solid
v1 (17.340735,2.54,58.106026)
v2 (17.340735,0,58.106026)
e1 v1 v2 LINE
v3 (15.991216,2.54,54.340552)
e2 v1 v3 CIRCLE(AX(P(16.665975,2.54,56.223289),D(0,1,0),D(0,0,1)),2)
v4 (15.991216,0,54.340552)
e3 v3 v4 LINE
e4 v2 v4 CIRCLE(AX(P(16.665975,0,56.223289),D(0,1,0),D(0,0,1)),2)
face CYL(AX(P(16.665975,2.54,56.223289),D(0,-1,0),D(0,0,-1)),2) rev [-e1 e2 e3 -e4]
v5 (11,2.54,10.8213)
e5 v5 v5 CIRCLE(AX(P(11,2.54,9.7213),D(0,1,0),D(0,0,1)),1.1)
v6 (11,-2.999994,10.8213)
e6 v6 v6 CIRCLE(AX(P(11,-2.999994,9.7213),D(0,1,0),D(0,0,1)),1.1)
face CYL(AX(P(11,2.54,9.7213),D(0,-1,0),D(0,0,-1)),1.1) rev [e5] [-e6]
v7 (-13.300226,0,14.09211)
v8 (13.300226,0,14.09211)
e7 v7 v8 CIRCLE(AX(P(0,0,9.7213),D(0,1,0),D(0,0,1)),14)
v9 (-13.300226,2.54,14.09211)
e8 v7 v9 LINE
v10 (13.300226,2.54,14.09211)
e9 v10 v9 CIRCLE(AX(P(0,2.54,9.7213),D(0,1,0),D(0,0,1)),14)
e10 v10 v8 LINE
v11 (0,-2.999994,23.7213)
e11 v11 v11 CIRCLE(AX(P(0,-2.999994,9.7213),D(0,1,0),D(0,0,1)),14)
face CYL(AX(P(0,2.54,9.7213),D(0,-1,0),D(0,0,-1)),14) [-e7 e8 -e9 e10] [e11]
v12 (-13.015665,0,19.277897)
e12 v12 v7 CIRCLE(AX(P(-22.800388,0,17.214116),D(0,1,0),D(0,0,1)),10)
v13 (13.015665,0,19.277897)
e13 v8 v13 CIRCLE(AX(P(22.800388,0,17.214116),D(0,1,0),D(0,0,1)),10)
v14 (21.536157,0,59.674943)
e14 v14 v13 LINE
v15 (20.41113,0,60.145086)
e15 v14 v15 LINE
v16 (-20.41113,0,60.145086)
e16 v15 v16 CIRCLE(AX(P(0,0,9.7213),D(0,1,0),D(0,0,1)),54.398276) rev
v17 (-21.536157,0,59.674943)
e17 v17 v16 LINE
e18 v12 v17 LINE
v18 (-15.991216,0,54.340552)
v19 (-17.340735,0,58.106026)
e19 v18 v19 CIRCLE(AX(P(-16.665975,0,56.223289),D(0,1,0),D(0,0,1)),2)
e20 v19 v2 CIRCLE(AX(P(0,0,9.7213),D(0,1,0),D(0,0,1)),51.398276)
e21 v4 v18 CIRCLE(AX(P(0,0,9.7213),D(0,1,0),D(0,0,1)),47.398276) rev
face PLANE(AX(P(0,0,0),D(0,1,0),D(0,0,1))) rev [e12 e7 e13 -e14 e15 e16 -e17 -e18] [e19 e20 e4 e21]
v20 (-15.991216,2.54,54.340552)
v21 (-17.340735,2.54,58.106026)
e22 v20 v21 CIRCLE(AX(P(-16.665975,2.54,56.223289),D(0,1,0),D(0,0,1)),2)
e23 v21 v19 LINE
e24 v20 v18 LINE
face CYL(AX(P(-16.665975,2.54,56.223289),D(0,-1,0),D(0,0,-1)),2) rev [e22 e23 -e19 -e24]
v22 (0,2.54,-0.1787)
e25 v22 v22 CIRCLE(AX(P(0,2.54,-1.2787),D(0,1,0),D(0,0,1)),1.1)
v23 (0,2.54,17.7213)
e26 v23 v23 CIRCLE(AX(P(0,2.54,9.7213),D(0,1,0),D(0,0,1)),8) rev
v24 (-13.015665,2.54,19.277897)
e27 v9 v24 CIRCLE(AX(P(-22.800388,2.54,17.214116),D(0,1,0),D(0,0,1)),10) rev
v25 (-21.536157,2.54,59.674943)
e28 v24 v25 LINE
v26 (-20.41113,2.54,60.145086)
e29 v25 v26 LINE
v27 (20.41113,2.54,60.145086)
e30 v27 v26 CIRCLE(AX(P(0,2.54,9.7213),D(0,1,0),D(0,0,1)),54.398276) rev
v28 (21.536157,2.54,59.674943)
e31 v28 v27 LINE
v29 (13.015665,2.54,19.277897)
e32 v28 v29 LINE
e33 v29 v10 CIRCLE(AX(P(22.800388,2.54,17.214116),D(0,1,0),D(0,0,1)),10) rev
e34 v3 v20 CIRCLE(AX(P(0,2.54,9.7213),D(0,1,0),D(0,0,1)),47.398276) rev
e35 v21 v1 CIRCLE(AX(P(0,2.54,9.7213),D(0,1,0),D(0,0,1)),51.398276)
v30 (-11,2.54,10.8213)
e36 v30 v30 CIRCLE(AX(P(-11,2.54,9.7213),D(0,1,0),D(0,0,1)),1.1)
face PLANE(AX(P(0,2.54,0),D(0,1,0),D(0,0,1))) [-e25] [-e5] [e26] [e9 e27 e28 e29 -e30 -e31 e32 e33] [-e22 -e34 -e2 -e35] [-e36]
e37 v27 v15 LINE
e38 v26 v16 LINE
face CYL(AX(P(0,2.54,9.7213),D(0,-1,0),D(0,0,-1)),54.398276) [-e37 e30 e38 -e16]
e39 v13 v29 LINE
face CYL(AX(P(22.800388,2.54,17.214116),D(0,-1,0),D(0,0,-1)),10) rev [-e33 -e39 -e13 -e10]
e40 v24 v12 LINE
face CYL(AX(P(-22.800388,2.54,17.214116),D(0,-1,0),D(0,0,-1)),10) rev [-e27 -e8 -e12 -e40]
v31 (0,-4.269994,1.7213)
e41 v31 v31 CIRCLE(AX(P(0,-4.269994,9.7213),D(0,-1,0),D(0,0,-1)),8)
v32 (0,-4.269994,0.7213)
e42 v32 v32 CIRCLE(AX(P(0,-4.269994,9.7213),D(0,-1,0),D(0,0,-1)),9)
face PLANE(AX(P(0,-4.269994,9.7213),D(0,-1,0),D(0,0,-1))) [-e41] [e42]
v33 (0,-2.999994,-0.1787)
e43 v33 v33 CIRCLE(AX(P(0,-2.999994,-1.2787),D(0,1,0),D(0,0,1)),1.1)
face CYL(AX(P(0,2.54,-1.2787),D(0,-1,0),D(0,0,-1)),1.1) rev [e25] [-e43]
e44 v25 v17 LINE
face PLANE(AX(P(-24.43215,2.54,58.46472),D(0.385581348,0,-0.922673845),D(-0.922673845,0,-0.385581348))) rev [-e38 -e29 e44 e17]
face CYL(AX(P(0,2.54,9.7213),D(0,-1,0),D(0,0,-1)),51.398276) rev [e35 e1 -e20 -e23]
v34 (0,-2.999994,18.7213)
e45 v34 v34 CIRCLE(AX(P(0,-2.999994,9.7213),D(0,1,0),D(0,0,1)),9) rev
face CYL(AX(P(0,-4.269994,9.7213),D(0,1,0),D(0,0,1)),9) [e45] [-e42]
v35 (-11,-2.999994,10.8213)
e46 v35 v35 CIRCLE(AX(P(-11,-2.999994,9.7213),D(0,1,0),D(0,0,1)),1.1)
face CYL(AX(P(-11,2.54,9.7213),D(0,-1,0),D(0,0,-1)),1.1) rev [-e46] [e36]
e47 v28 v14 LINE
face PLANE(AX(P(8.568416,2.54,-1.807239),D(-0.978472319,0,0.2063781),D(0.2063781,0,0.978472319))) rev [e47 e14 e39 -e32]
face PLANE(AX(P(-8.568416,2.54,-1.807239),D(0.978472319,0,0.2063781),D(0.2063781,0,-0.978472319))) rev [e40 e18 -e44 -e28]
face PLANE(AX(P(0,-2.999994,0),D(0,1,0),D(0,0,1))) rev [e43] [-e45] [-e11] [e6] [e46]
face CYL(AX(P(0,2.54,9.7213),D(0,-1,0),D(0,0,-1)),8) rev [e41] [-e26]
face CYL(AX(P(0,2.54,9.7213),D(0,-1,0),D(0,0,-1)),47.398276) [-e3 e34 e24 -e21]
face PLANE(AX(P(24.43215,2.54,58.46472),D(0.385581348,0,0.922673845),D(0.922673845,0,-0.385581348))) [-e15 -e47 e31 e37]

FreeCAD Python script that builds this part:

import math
import FreeCAD as App
import Part
import Sketcher

V = App.Vector
Q = App.Units.Quantity


def edges_at(feature, points):
    """Names of the edges that pass closest to the given points."""
    edges = feature.Shape.Edges
    near = lambda p: min(range(len(edges)), key=lambda i: edges[i].distToShape(Part.Vertex(*p))[0])
    return sorted({f"Edge{near(p) + 1}" for p in points})

doc = App.newDocument("Part")
body = doc.addObject("PartDesign::Body", "Body")

# Sketch on XZ plane
sketch1 = body.newObject("Sketcher::SketchObject", "Sketch")
sketch1.AttachmentSupport = (doc.getObject("XZ_Plane"), [""])
sketch1.MapMode = "FlatFace"
sketch1.addGeometry([
    Part.LineSegment(V(20.4, 60.1, 0), V(21.5, 59.7, 0)),  # 0
    Part.LineSegment(V(21.5, 59.7, 0), V(12.4, 16.3, 0)),  # 1
    Part.ArcOfCircle(Part.Circle(V(0, 9.7, 0), V(0, 0, 1), 14), math.radians(152), math.radians(388)),  # 2
    Part.LineSegment(V(-12.4, 16.3, 0), V(-21.5, 59.7, 0)),  # 3
    Part.LineSegment(V(-21.5, 59.7, 0), V(-20.4, 60.1, 0)),  # 4
    Part.ArcOfCircle(Part.Circle(V(0, 9.7, 0), V(0, 0, 1), 54.4), math.radians(68), math.radians(112)),  # 5
    Part.ArcOfCircle(Part.Circle(V(16.7, 56.2, 0), V(0, 0, 1), 2), math.radians(-110), math.radians(70)),  # 6
    Part.ArcOfCircle(Part.Circle(V(0, 9.7, 0), V(0, 0, 1), 51.4), math.radians(70), math.radians(110)),  # 7
    Part.ArcOfCircle(Part.Circle(V(-16.7, 56.2, 0), V(0, 0, 1), 2), math.radians(110), math.radians(290)),  # 8
    Part.ArcOfCircle(Part.Circle(V(0, 9.7, 0), V(0, 0, 1), 47.4), math.radians(70), math.radians(110)),  # 9
    Part.Circle(V(-11, 9.7, 0), V(0, 0, 1), 1.1),  # 10
    Part.Circle(V(0, 9.7, 0), V(0, 0, 1), 8),  # 11
    Part.Circle(V(0, -1.3, 0), V(0, 0, 1), 1.1),  # 12
    Part.Circle(V(11, 9.7, 0), V(0, 0, 1), 1.1),  # 13
], False)
sketch1.addConstraint([
    Sketcher.Constraint("Coincident", 0, 2, 1, 1),
    Sketcher.Constraint("Coincident", 1, 2, 2, 2),
    Sketcher.Constraint("Coincident", 2, 1, 3, 1),
    Sketcher.Constraint("Coincident", 3, 2, 4, 1),
    Sketcher.Constraint("Coincident", 4, 2, 5, 2),
    Sketcher.Constraint("Coincident", 5, 1, 0, 1),
    Sketcher.Constraint("Tangent", 6, 2, 7, 1),
    Sketcher.Constraint("Tangent", 7, 2, 8, 1),
    Sketcher.Constraint("Tangent", 8, 2, 9, 2),
    Sketcher.Constraint("Tangent", 9, 1, 6, 1),
    Sketcher.Constraint("Coincident", 5, 3, 2, 3),
    Sketcher.Constraint("Coincident", 7, 3, 2, 3),
    Sketcher.Constraint("Coincident", 9, 3, 2, 3),
    Sketcher.Constraint("Coincident", 11, 3, 2, 3),
    Sketcher.Constraint("Equal", 10, 12),
    Sketcher.Constraint("Equal", 12, 13),
    Sketcher.Constraint("Symmetric", 6, 3, 8, 3, -2),
    Sketcher.Constraint("Symmetric", 10, 3, 13, 3, -2),
    Sketcher.Constraint("Symmetric", 0, 2, 3, 2, -2),
    Sketcher.Constraint("PointOnObject", 12, 3, -2),
    Sketcher.Constraint("Horizontal", 9, 3, 10, 3),
    Sketcher.Constraint("Horizontal", 1, 2, 2, 1),
    Sketcher.Constraint("Horizontal", 4, 2, 5, 1),
    Sketcher.Constraint("Diameter", 11, Q("16 mm")),
    Sketcher.Constraint("Radius", 2, Q("14 mm")),
    Sketcher.Constraint("Radius", 6, Q("2 mm")),
    Sketcher.Constraint("Diameter", 10, Q("2.2 mm")),
    Sketcher.Constraint("DistanceX", 10, 3, -1, 1, Q("11 mm")),
    Sketcher.Constraint("DistanceY", 12, 3, 9, 3, Q("11 mm")),
    Sketcher.Constraint("Radius", 5, Q("54.398276 mm")),
    Sketcher.Constraint("Radius", 7, Q("51.398276 mm")),
    Sketcher.Constraint("DistanceY", -1, 1, 2, 3, Q("9.7213 mm")),
    Sketcher.Constraint("Distance", 0, Q("1.219312 mm")),
    Sketcher.Constraint("DistanceY", -1, 1, 6, 3, Q("56.223289 mm")),
    Sketcher.Constraint("DistanceX", 4, 2, -1, 1, Q("20.41113 mm")),
    Sketcher.Constraint("DistanceX", 6, 3, 0, 2, Q("4.870181 mm")),
    Sketcher.Constraint("DistanceY", 2, 1, 3, 2, Q("43.414809 mm")),
])
pad1 = body.newObject("PartDesign::Pad", "Pad")
pad1.Profile = sketch1
pad1.Length = 2.54
pad1.Reversed = True
doc.recompute()

fillet = body.newObject("PartDesign::Fillet", "Fillet")
fillet.Base = (pad1, edges_at(pad1, [(12.379, 1.27, 16.26), (-12.379, 1.27, 16.26)]))
fillet.Radius = 10

# Sketch on XZ plane
sketch2 = body.newObject("Sketcher::SketchObject", "Sketch001")
sketch2.AttachmentSupport = (doc.getObject("XZ_Plane"), [""])
sketch2.MapMode = "FlatFace"
sketch2.addGeometry([
    Part.ArcOfCircle(Part.Circle(V(0, 9.7, 0), V(0, 0, 1), 14), math.radians(28), math.radians(152)),  # 0
    Part.ArcOfCircle(Part.Circle(V(0, 9.7, 0), V(0, 0, 1), 14), math.radians(0), math.radians(28)),  # 1
    Part.ArcOfCircle(Part.Circle(V(0, 9.7, 0), V(0, 0, 1), 14), math.radians(152), math.radians(360)),  # 2
    Part.ArcOfCircle(Part.Circle(V(-11, 9.7, 0), V(0, 0, 1), 1.1), math.radians(102), math.radians(360)),  # 3
    Part.ArcOfCircle(Part.Circle(V(-11, 9.7, 0), V(0, 0, 1), 1.1), math.radians(0), math.radians(102)),  # 4
    Part.Circle(V(0, 9.7, 0), V(0, 0, 1), 8),  # 5
    Part.ArcOfCircle(Part.Circle(V(11, 9.7, 0), V(0, 0, 1), 1.1), math.radians(78), math.radians(360)),  # 6
    Part.ArcOfCircle(Part.Circle(V(11, 9.7, 0), V(0, 0, 1), 1.1), math.radians(0), math.radians(78)),  # 7
    Part.Circle(V(0, -1.3, 0), V(0, 0, 1), 1.1),  # 8
], False)
sketch2.addConstraint([
    Sketcher.Constraint("Tangent", 0, 1, 1, 2),
    Sketcher.Constraint("Tangent", 1, 1, 2, 2),
    Sketcher.Constraint("Tangent", 2, 1, 0, 2),
    Sketcher.Constraint("Tangent", 3, 1, 4, 2),
    Sketcher.Constraint("Coincident", 4, 1, 3, 2),
    Sketcher.Constraint("Tangent", 6, 1, 7, 2),
    Sketcher.Constraint("Coincident", 7, 1, 6, 2),
    Sketcher.Constraint("Coincident", 5, 3, 0, 3),
    Sketcher.Constraint("Equal", 4, 6),
    Sketcher.Constraint("Equal", 7, 8),
    Sketcher.Constraint("Symmetric", 3, 3, 6, 3, -2),
    Sketcher.Constraint("Symmetric", 0, 1, 2, 1, -2),
    Sketcher.Constraint("PointOnObject", 8, 3, -2),
    Sketcher.Constraint("Horizontal", 2, 3, 3, 3),
    Sketcher.Constraint("Horizontal", 7, 3, 1, 1),
    Sketcher.Constraint("Horizontal", 1, 1, 4, 1),
    Sketcher.Constraint("Horizontal", 3, 1, 6, 1),
    Sketcher.Constraint("Horizontal", 4, 1, 7, 1),
    Sketcher.Constraint("Diameter", 5, Q("16 mm")),
    Sketcher.Constraint("Radius", 0, Q("14 mm")),
    Sketcher.Constraint("Diameter", 8, Q("2.2 mm")),
    Sketcher.Constraint("DistanceX", 3, 3, -1, 1, Q("11 mm")),
    Sketcher.Constraint("DistanceY", 8, 3, 1, 3, Q("11 mm")),
    Sketcher.Constraint("DistanceY", -1, 1, 0, 3, Q("9.7213 mm")),
    Sketcher.Constraint("DistanceY", -1, 1, 3, 1, Q("10.79762 mm")),
    Sketcher.Constraint("DistanceX", -1, 1, 0, 1, Q("12.379162 mm")),
])
pad2 = body.newObject("PartDesign::Pad", "Pad001")
pad2.Profile = sketch2
pad2.Length = 2.999994

# Sketch on XZ plane
sketch3 = body.newObject("Sketcher::SketchObject", "Sketch002")
sketch3.AttachmentSupport = (doc.getObject("XZ_Plane"), [""])
sketch3.MapMode = "FlatFace"
sketch3.AttachmentOffset = App.Placement(V(0, 0, 2.999994), App.Rotation())
sketch3.addGeometry([
    Part.Circle(V(0, 10, 0), V(0, 0, 1), 9),
    Part.Circle(V(0, 10, 0), V(0, 0, 1), 8),
], False)
sketch3.addConstraint([
    Sketcher.Constraint("Coincident", 1, 3, 0, 3),
    Sketcher.Constraint("PointOnObject", 0, 3, -2),
    Sketcher.Constraint("Diameter", 0, Q("18 mm")),
    Sketcher.Constraint("Diameter", 1, Q("16 mm")),
    Sketcher.Constraint("DistanceY", -1, 1, 0, 3, Q("9.7213 mm")),
])
pad3 = body.newObject("PartDesign::Pad", "Pad002")
pad3.Profile = sketch3
pad3.Length = 1.27

doc.recompute()
